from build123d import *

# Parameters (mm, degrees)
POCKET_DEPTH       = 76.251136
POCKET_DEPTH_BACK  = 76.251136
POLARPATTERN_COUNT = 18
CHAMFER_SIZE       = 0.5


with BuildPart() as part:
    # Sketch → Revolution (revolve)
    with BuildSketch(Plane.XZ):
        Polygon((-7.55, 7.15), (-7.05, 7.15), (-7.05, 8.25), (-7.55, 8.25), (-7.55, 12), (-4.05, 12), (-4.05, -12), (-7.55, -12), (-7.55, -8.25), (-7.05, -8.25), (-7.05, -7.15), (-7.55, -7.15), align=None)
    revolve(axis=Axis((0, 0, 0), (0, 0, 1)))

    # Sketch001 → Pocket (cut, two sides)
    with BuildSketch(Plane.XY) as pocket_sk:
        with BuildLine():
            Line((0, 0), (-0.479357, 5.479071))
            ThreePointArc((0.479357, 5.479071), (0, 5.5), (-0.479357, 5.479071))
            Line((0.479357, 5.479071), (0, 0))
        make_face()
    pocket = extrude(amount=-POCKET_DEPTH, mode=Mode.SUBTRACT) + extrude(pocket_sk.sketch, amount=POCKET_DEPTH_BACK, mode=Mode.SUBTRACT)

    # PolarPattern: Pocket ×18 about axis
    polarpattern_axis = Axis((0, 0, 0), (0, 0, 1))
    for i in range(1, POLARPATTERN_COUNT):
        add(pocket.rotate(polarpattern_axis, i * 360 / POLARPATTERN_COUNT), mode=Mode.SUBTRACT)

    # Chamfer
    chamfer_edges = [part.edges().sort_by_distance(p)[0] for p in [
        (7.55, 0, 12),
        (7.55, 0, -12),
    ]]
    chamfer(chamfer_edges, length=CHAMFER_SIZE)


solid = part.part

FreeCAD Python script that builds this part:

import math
import FreeCAD as App
import Part
import Sketcher
Q = App.Units.Quantity


def edges_at(feature, points):
    """Names of the edges that pass closest to the given points."""
    edges = feature.Shape.Edges
    near = lambda p: min(range(len(edges)), key=lambda i: edges[i].distToShape(Part.Vertex(*p))[0])
    return sorted({f"Edge{near(p) + 1}" for p in points})


def add_polygon(sketch, points):
    """Adds a closed chain of lines whose ends are joined by coincident constraints."""
    first, n = sketch.GeometryCount, len(points)
    for a, b in zip(points, points[1:] + points[:1]):
        sketch.addGeometry(Part.LineSegment(App.Vector(*a, 0), App.Vector(*b, 0)), False)
    for i in range(n):
        sketch.addConstraint(Sketcher.Constraint("Coincident", first + i, 2, first + (i + 1) % n, 1))

doc = App.newDocument("Part")
body = doc.addObject("PartDesign::Body", "Body")

sketch1 = body.newObject("Sketcher::SketchObject", "Sketch")
sketch1.AttachmentSupport = (doc.getObject("XZ_Plane"), [""])
sketch1.MapMode = "FlatFace"
add_polygon(sketch1, [(-7, 7.2), (-7.5, 7.2), (-7.5, -7.2), (-7, -7.2), (-7, -8.2), (-7.5, -8.2), (-7.5, -12), (-4, -12), (-4, 12), (-7.5, 12), (-7.5, 8.2), (-7, 8.2)])
sketch1.addConstraint([
    Sketcher.Constraint("Horizontal", 0),
    Sketcher.Constraint("Vertical", 1),
    Sketcher.Constraint("Horizontal", 2),
    Sketcher.Constraint("Vertical", 3),
    Sketcher.Constraint("Horizontal", 4),
    Sketcher.Constraint("Vertical", 5),
    Sketcher.Constraint("Horizontal", 6),
    Sketcher.Constraint("Vertical", 7),
    Sketcher.Constraint("Horizontal", 8),
    Sketcher.Constraint("Vertical", 9),
    Sketcher.Constraint("Horizontal", 10),
    Sketcher.Constraint("Vertical", 11),
    Sketcher.Constraint("Symmetric", 5, 2, 8, 2, -1),
    Sketcher.Constraint("Symmetric", 3, 2, 10, 2, -1),
    Sketcher.Constraint("Vertical", 1, 2, 4, 2),
    Sketcher.Constraint("Equal", 3, 11),
    Sketcher.Constraint("DistanceY", 7, 1, 7, 2, 24.0),
    Sketcher.Constraint("DistanceX", 0, 2, 0, 1, 0.5),
    Sketcher.Constraint("DistanceX", 6, 1, 6, 2, 3.5),
    Sketcher.Constraint("DistanceY", 1, 2, 1, 1, 14.3),
    Sketcher.Constraint("DistanceY", 3, 2, 3, 1, 1.1),
    Sketcher.Constraint("DistanceX", 0, 2, -1, 1, 7.55),
])
revolution = body.newObject("PartDesign::Revolution", "Revolution")
revolution.Profile = sketch1
revolution.ReferenceAxis = (sketch1, ["V_Axis"])
revolution.Angle = 360

sketch2 = body.newObject("Sketcher::SketchObject", "Sketch001")
sketch2.AttachmentSupport = (doc.getObject("XY_Plane"), [""])
sketch2.MapMode = "FlatFace"
sketch2.addGeometry([
    Part.LineSegment(App.Vector(-0.5, 5.5, 0), App.Vector(0, 0, 0)),
    Part.LineSegment(App.Vector(0, 0, 0), App.Vector(0.5, 5.5, 0)),
    Part.ArcOfCircle(Part.Circle(App.Vector(0, 0, 0), App.Vector(0, 0, 1), 5.5), math.radians(85), math.radians(95)),
], False)
sketch2.addConstraint([
    Sketcher.Constraint("Coincident", 0, 2, 1, 1),
    Sketcher.Constraint("Coincident", 1, 2, 2, 1),
    Sketcher.Constraint("Coincident", 2, 2, 0, 1),
    Sketcher.Constraint("Coincident", 0, 2, -1, 1),
    Sketcher.Constraint("Symmetric", 1, 2, 2, 2, -2),
    Sketcher.Constraint("Angle", 0, Q("-84.999996 deg")),
    Sketcher.Constraint("Distance", 0, 5.5),
    Sketcher.Constraint("Radius", 2, 5.500052),
])
pocket1 = body.newObject("PartDesign::Pocket", "Pocket")
pocket1.Profile = sketch2
pocket1.Type = "ThroughAll"
pocket1.Midplane = True
doc.recompute()

polarpattern = body.newObject("PartDesign::PolarPattern", "PolarPattern")
polarpattern.Originals = [pocket1]
polarpattern.Axis = (doc.getObject("Z_Axis"), [""])
polarpattern.Angle = 360
polarpattern.Occurrences = 18
body.Tip = polarpattern
doc.recompute()

chamfer = body.newObject("PartDesign::Chamfer", "Chamfer")
chamfer.Base = (polarpattern, edges_at(polarpattern, [(7.55, 0, 12), (7.55, 0, -12)]))
chamfer.Size = 0.5

doc.recompute()
